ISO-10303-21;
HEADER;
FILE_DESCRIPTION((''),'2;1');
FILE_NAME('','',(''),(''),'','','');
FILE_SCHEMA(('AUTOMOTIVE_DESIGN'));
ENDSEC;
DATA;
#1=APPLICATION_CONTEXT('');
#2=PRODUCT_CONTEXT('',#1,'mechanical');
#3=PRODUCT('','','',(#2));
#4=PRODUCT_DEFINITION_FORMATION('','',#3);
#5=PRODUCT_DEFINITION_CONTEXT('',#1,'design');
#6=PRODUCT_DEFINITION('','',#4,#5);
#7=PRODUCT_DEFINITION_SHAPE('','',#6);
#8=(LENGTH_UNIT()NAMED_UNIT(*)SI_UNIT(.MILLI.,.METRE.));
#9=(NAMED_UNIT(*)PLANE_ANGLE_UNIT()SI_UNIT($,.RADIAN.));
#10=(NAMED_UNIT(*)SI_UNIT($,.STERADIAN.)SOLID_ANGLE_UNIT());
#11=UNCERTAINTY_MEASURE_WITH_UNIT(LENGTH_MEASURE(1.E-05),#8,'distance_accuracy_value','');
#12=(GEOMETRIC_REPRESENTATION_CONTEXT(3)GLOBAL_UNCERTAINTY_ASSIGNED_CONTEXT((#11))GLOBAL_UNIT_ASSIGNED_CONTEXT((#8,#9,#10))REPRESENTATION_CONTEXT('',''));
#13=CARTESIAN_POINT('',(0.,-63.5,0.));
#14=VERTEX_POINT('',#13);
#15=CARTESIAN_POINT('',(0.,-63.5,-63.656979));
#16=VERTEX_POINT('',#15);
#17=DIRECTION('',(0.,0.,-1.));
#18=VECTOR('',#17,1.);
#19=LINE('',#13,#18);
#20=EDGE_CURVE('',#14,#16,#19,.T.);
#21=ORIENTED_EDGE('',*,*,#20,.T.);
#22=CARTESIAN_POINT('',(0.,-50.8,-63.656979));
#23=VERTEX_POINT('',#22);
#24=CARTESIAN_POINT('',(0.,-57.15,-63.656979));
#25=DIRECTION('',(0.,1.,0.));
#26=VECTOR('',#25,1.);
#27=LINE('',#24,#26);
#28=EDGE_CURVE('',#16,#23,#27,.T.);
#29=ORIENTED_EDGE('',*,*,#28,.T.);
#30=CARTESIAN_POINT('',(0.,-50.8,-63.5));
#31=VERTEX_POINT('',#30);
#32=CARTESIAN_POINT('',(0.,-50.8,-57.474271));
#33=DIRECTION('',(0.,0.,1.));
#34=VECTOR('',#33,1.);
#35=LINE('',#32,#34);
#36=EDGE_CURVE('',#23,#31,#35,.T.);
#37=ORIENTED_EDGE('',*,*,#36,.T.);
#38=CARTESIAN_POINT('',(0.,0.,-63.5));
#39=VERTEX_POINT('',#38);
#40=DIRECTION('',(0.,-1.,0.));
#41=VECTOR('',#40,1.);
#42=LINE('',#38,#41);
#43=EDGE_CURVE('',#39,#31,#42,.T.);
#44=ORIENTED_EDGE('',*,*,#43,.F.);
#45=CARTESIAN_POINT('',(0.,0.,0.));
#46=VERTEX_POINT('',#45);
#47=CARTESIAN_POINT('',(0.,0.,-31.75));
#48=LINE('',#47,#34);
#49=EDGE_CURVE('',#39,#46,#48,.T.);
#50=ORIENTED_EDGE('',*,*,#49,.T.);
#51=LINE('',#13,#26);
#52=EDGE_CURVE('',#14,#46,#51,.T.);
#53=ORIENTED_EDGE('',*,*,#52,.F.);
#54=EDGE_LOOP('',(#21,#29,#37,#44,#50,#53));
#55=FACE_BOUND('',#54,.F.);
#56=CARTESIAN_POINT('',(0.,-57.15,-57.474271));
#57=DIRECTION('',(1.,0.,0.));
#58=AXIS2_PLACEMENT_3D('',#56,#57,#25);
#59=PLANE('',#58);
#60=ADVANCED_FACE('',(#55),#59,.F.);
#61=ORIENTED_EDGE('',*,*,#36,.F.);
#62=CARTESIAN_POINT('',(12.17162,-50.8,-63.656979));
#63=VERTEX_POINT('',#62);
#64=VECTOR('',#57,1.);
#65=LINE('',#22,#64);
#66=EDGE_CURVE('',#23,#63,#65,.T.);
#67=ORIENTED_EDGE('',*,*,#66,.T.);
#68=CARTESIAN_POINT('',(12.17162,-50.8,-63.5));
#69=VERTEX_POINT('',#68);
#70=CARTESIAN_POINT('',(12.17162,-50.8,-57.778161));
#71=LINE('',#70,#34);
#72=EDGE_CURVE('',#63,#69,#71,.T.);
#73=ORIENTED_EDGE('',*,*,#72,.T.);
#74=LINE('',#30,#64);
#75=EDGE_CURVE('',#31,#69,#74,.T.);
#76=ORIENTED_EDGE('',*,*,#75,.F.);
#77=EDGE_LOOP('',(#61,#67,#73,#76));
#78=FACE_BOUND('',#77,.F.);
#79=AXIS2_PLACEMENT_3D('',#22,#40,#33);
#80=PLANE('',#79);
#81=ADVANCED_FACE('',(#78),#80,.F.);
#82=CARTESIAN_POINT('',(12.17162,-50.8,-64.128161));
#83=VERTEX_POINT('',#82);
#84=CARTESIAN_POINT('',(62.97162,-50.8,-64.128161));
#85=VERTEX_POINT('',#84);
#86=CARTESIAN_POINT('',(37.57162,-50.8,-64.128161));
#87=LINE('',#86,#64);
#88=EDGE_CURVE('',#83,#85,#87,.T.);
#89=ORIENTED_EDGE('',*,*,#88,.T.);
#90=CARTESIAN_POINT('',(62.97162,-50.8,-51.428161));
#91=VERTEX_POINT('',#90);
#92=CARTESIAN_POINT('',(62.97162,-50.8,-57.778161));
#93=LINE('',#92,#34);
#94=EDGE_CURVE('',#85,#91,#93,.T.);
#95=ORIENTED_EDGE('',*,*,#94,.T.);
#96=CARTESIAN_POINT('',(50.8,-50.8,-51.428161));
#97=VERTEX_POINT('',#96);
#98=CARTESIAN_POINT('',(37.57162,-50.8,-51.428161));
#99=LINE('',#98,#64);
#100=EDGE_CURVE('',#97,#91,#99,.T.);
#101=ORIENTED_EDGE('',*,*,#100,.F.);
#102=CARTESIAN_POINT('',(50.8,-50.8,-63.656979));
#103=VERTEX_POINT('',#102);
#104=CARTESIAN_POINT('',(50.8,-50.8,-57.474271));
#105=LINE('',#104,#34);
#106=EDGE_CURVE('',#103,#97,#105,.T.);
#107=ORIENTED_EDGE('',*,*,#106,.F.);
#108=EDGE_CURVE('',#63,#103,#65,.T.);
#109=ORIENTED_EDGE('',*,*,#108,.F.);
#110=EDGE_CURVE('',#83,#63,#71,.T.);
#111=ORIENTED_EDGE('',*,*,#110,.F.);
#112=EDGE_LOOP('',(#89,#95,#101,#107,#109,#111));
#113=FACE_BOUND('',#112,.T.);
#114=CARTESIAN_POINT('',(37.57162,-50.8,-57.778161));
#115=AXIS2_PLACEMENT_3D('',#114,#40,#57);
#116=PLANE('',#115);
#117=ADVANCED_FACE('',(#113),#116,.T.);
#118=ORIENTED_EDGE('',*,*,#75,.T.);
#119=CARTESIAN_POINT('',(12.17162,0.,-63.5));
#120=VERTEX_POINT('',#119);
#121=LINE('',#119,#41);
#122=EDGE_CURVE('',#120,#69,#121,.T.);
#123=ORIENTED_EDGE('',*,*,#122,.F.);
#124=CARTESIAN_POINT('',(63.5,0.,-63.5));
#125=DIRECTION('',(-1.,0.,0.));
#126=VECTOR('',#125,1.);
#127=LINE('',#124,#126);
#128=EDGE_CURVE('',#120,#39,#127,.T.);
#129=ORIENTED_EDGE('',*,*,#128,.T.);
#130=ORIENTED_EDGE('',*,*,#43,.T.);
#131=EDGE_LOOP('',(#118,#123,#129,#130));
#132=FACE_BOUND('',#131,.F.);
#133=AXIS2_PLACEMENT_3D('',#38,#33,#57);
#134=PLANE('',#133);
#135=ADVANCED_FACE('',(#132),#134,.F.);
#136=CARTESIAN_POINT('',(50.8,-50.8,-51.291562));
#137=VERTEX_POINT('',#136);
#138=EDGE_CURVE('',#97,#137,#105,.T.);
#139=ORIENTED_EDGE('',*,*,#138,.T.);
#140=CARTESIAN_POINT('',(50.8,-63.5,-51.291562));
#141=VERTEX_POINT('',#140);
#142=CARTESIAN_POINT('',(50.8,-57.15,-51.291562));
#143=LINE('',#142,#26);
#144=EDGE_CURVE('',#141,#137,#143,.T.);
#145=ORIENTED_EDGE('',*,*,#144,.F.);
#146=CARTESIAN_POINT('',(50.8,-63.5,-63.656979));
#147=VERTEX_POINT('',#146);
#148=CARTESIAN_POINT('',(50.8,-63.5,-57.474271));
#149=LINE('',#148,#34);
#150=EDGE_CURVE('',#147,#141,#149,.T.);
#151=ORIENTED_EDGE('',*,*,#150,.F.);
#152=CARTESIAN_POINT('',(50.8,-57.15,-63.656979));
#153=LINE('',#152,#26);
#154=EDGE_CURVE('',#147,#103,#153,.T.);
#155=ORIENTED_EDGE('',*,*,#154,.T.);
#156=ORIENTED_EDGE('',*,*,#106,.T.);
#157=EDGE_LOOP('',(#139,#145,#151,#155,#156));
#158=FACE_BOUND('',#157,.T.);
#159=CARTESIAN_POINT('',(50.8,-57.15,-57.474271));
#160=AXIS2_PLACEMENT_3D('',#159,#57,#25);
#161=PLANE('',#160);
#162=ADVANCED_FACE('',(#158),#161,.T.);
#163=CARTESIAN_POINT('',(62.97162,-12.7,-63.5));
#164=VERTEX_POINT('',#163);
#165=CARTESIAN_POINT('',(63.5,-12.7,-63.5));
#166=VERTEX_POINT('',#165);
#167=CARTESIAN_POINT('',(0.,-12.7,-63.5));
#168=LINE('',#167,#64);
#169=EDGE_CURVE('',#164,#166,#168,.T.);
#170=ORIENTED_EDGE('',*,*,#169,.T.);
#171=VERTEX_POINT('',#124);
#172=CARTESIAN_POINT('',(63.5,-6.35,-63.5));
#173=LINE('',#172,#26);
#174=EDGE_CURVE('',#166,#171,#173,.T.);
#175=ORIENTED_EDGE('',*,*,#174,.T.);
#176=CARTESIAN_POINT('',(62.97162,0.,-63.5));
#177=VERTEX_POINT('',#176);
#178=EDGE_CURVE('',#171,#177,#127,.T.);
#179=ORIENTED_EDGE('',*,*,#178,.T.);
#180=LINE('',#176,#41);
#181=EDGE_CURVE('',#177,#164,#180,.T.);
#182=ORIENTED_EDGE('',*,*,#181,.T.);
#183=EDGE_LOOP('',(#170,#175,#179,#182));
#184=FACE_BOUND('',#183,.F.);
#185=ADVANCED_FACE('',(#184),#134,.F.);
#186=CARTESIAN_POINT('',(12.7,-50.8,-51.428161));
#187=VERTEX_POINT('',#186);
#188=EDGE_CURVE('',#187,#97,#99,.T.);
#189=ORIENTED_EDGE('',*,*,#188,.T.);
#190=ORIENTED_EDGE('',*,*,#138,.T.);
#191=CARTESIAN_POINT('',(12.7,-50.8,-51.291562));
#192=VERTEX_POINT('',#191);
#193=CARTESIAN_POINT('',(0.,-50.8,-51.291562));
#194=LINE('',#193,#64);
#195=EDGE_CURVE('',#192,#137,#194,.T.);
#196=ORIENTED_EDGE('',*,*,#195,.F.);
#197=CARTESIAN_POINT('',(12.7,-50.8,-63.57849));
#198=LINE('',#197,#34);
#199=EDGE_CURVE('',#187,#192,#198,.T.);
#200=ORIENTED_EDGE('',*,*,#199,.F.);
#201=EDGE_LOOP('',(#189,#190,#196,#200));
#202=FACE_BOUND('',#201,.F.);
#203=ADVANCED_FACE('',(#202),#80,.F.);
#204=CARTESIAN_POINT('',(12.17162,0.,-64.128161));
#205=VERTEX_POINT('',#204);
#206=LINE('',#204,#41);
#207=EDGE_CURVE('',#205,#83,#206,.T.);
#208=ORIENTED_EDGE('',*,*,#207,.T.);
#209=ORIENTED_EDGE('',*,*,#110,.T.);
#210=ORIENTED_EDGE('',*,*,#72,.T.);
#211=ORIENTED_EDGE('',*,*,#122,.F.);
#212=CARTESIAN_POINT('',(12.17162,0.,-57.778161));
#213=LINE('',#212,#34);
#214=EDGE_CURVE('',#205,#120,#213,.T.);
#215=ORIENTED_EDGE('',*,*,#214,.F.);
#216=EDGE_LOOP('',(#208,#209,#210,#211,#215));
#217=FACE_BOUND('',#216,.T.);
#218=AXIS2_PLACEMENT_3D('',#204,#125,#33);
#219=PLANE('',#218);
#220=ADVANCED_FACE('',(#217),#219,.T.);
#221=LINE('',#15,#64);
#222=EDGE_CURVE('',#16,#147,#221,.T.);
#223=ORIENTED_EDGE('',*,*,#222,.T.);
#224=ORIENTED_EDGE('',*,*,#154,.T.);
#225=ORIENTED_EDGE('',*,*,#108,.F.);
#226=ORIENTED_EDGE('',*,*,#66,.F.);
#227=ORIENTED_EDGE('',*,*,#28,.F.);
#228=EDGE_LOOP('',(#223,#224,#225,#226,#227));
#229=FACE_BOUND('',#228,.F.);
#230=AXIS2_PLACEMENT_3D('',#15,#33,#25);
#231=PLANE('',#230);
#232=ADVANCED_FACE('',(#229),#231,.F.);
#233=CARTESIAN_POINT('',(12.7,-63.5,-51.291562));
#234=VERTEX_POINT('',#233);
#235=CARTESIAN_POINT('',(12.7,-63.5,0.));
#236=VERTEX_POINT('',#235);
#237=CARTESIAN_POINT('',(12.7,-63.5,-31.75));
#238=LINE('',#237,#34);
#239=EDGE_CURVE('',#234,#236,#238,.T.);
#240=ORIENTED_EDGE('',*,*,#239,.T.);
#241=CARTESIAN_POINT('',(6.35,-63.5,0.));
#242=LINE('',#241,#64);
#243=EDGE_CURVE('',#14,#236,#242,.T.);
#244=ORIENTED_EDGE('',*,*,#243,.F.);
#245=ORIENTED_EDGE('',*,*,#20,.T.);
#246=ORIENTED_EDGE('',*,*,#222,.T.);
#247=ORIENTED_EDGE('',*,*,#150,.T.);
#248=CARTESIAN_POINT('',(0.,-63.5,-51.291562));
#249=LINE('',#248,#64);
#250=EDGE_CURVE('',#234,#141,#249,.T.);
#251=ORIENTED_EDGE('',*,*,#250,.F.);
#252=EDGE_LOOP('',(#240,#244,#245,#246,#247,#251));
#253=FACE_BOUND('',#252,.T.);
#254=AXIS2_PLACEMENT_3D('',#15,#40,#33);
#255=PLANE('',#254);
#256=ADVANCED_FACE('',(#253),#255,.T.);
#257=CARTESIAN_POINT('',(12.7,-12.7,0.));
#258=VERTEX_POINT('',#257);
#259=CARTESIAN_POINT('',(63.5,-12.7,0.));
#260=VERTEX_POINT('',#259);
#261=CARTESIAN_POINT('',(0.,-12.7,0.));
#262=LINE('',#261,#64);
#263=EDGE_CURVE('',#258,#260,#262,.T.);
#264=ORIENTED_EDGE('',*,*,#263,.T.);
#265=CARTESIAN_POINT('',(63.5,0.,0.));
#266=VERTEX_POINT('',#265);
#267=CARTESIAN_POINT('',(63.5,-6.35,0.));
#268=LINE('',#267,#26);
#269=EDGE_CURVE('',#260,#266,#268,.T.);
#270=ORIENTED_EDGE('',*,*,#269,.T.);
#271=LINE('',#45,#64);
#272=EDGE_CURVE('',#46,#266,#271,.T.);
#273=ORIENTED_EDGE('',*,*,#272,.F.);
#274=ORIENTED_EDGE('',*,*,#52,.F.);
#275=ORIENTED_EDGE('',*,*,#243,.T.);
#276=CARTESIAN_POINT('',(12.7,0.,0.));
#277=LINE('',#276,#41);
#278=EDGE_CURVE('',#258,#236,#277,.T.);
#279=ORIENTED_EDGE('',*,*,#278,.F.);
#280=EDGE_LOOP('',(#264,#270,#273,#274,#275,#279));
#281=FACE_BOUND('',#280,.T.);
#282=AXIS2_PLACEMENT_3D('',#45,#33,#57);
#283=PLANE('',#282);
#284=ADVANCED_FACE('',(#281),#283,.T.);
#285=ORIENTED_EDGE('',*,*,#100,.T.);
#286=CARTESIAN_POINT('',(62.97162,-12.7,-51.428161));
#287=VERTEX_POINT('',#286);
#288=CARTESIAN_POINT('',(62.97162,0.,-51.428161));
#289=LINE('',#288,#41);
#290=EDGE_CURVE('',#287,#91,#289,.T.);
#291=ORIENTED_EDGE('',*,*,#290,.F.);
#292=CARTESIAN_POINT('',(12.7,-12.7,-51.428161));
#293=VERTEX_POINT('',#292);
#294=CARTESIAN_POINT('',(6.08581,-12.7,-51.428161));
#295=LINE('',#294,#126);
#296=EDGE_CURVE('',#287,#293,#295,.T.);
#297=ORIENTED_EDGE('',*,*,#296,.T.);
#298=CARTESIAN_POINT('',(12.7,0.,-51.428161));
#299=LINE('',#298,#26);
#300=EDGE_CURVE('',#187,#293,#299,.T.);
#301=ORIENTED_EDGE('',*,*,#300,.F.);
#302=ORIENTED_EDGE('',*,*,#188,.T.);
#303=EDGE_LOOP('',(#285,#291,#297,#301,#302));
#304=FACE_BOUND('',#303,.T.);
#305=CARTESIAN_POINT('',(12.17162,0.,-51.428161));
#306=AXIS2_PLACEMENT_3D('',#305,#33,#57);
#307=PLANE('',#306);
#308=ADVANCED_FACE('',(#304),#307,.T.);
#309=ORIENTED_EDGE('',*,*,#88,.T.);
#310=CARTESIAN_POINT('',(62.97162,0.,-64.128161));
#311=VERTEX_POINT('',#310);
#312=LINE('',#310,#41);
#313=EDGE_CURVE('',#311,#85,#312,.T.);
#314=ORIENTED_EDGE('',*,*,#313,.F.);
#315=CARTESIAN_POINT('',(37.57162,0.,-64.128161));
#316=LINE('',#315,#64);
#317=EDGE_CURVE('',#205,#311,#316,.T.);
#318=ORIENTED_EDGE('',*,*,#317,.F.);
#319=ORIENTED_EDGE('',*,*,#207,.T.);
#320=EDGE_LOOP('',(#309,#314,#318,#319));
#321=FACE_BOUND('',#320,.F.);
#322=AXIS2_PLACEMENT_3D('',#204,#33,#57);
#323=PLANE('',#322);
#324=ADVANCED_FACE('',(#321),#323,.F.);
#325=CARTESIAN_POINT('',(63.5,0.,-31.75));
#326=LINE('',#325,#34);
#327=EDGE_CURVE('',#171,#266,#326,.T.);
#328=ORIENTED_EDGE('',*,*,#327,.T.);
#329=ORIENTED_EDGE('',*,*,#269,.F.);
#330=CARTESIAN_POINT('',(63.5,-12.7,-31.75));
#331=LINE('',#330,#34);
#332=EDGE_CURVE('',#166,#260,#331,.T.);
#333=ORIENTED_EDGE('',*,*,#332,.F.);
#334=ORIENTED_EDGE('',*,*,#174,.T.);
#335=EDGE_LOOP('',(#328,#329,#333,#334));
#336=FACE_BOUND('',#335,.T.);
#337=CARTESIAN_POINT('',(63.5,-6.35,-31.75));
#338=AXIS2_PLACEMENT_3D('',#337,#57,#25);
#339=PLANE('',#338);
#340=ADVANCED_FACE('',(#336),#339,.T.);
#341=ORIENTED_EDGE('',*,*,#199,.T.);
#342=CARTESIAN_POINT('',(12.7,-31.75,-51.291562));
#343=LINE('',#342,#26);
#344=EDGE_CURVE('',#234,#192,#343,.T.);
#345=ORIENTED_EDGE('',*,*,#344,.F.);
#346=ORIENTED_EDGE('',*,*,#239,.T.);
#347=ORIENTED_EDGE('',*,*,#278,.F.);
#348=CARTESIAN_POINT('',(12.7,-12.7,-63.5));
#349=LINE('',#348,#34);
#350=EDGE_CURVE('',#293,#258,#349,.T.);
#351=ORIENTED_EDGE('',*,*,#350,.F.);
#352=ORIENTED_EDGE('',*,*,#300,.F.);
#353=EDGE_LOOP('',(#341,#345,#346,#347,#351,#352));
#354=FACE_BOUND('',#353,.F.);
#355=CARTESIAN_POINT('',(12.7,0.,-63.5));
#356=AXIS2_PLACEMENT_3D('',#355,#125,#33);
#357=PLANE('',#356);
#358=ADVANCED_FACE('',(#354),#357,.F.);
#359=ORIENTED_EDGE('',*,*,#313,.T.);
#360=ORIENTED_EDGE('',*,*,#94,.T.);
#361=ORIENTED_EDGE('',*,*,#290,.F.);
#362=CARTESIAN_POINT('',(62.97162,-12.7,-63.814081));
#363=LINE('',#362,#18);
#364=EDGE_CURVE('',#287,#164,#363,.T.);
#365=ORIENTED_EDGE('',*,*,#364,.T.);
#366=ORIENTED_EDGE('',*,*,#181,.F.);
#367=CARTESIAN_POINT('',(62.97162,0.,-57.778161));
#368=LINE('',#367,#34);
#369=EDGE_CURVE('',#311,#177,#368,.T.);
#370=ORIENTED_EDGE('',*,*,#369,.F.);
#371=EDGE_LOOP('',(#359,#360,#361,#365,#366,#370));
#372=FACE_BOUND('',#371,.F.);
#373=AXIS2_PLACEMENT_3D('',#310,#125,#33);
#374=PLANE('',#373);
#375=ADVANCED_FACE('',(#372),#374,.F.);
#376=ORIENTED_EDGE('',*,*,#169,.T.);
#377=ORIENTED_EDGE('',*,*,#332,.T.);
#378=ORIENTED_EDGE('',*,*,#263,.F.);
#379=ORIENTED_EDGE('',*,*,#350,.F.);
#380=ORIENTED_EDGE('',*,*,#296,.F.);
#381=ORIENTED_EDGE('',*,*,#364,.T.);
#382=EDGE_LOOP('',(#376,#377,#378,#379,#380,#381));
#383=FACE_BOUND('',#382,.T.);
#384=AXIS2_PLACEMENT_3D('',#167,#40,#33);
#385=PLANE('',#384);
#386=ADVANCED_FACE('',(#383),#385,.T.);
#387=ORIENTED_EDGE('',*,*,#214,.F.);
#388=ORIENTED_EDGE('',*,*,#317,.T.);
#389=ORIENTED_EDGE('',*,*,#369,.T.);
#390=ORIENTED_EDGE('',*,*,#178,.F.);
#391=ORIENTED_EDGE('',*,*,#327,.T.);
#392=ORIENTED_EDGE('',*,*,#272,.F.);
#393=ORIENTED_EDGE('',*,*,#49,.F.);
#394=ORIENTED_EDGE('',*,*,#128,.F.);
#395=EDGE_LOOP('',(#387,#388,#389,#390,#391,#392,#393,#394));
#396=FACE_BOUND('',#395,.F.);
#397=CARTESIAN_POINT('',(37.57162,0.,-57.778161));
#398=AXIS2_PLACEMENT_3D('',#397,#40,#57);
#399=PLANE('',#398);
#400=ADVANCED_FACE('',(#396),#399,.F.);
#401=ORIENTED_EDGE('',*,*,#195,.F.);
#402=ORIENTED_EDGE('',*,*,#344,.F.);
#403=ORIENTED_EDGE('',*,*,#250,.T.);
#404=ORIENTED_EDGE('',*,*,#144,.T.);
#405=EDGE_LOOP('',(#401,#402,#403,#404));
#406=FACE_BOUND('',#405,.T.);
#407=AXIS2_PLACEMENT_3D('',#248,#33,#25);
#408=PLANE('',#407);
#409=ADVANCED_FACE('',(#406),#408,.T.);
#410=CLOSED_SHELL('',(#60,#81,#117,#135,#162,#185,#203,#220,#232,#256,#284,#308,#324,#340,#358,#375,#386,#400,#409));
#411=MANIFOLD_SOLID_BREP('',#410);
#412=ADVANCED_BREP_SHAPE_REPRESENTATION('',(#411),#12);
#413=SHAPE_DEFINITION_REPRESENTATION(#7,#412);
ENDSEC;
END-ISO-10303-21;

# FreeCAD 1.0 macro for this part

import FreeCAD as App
import Part
import Sketcher
Q = App.Units.Quantity

doc = App.newDocument("Part")
params = doc.addObject("Spreadsheet::Sheet", "Params")
for row, (alias, value) in enumerate([
    ("sketch1_width", "0.5 in"),
    ("sketch1_height", "2.5 in"),
    ("pad1_length", "2.5 in"),
    ("sketch2_width", "0.5 in"),
    ("sketch2_height", "2.5 in"),
    ("pad2_length", "2.5 in"),
    ("sketch3_width", "2 in"),
    ("sketch3_height", "0.5 in"),
    ("pad3_length", "2 in"),
    ("sketch4_width", "0.5 in"),
    ("pad4_length", "2 in"),
], start=1):
    params.set(f"A{row}", alias)
    params.set(f"B{row}", "=" + value)
    params.setAlias(f"B{row}", alias)

body = doc.addObject("PartDesign::Body", "Body")

sketch1 = body.newObject("Sketcher::SketchObject", "Sketch")
sketch1.AttachmentSupport = (doc.getObject("XZ_Plane"), [""])
sketch1.MapMode = "FlatFace"
sketch1.addGeometry([
    Part.LineSegment(App.Vector(0, 0, 0), App.Vector(0, -63.5, 0)),
    Part.LineSegment(App.Vector(0, -63.5, 0), App.Vector(12.7, -63.5, 0)),
    Part.LineSegment(App.Vector(12.7, -63.5, 0), App.Vector(12.7, 0, 0)),
    Part.LineSegment(App.Vector(12.7, 0, 0), App.Vector(0, 0, 0)),
], False)
sketch1.addConstraint([
    Sketcher.Constraint("Coincident", 0, 2, 1, 1),
    Sketcher.Constraint("Coincident", 1, 2, 2, 1),
    Sketcher.Constraint("Coincident", 2, 2, 3, 1),
    Sketcher.Constraint("Coincident", 3, 2, 0, 1),
    Sketcher.Constraint("Vertical", 0),
    Sketcher.Constraint("Horizontal", 1),
    Sketcher.Constraint("Vertical", 2),
    Sketcher.Constraint("Horizontal", 3),
    Sketcher.Constraint("Coincident", 3, 2, -1, 1),
    Sketcher.Constraint("DistanceX", 1, 1, 1, 2, Q("0.5 in")),
    Sketcher.Constraint("DistanceY", 0, 2, 0, 1, Q("2.5 in")),
])
sketch1.setExpression("Constraints[9]", "Params.sketch1_width")
sketch1.setExpression("Constraints[10]", "Params.sketch1_height")
pad1 = body.newObject("PartDesign::Pad", "Pad")
pad1.Profile = sketch1
pad1.setExpression("Length", "Params.pad1_length")

sketch2 = body.newObject("Sketcher::SketchObject", "Sketch001")
sketch2.AttachmentSupport = (doc.getObject("YZ_Plane"), [""])
sketch2.MapMode = "FlatFace"
sketch2.addGeometry([
    Part.LineSegment(App.Vector(-12.7, 0, 0), App.Vector(-12.7, -63.5, 0)),
    Part.LineSegment(App.Vector(-12.7, -63.5, 0), App.Vector(0, -63.5, 0)),
    Part.LineSegment(App.Vector(0, -63.5, 0), App.Vector(0, 0, 0)),
    Part.LineSegment(App.Vector(0, 0, 0), App.Vector(-12.7, 0, 0)),
], False)
sketch2.addConstraint([
    Sketcher.Constraint("Coincident", 0, 2, 1, 1),
    Sketcher.Constraint("Coincident", 1, 2, 2, 1),
    Sketcher.Constraint("Coincident", 2, 2, 3, 1),
    Sketcher.Constraint("Coincident", 3, 2, 0, 1),
    Sketcher.Constraint("Vertical", 0),
    Sketcher.Constraint("Horizontal", 1),
    Sketcher.Constraint("Vertical", 2),
    Sketcher.Constraint("Horizontal", 3),
    Sketcher.Constraint("Coincident", 2, 2, -1, 1),
    Sketcher.Constraint("DistanceX", 1, 1, 1, 2, Q("0.5 in")),
    Sketcher.Constraint("DistanceY", 0, 2, 0, 1, Q("2.5 in")),
])
sketch2.setExpression("Constraints[9]", "Params.sketch2_width")
sketch2.setExpression("Constraints[10]", "Params.sketch2_height")
pad2 = body.newObject("PartDesign::Pad", "Pad001")
pad2.Profile = sketch2
pad2.setExpression("Length", "Params.pad2_length")

sketch3 = body.newObject("Sketcher::SketchObject", "Sketch002")
sketch3.AttachmentSupport = (doc.getObject("XZ_Plane"), [""])
sketch3.MapMode = "FlatFace"
sketch3.addGeometry([
    Part.LineSegment(App.Vector(12.17162, -51.428161, 0), App.Vector(12.17162, -64.128161, 0)),
    Part.LineSegment(App.Vector(12.17162, -64.128161, 0), App.Vector(62.97162, -64.128161, 0)),
    Part.LineSegment(App.Vector(62.97162, -64.128161, 0), App.Vector(62.97162, -51.428161, 0)),
    Part.LineSegment(App.Vector(62.97162, -51.428161, 0), App.Vector(12.17162, -51.428161, 0)),
], False)
sketch3.addConstraint([
    Sketcher.Constraint("Coincident", 0, 2, 1, 1),
    Sketcher.Constraint("Coincident", 1, 2, 2, 1),
    Sketcher.Constraint("Coincident", 2, 2, 3, 1),
    Sketcher.Constraint("Coincident", 3, 2, 0, 1),
    Sketcher.Constraint("Vertical", 0),
    Sketcher.Constraint("Horizontal", 1),
    Sketcher.Constraint("Vertical", 2),
    Sketcher.Constraint("Horizontal", 3),
    Sketcher.Constraint("DistanceX", 1, 1, 1, 2, Q("2 in")),
    Sketcher.Constraint("DistanceY", 0, 2, 0, 1, Q("0.5 in")),
    Sketcher.Constraint("DistanceX", -1, 1, 0, 2, 12.17162),
    Sketcher.Constraint("DistanceY", 0, 2, -1, 1, 64.128161),
])
sketch3.setExpression("Constraints[8]", "Params.sketch3_width")
sketch3.setExpression("Constraints[9]", "Params.sketch3_height")
pad3 = body.newObject("PartDesign::Pad", "Pad002")
pad3.Profile = sketch3
pad3.setExpression("Length", "Params.pad3_length")

sketch4 = body.newObject("Sketcher::SketchObject", "Sketch003")
sketch4.AttachmentSupport = (doc.getObject("YZ_Plane"), [""])
sketch4.MapMode = "FlatFace"
sketch4.addGeometry([
    Part.LineSegment(App.Vector(-63.5, -51.291562, 0), App.Vector(-63.5, -63.656979, 0)),
    Part.LineSegment(App.Vector(-63.5, -63.656979, 0), App.Vector(-50.8, -63.656979, 0)),
    Part.LineSegment(App.Vector(-50.8, -63.656979, 0), App.Vector(-50.8, -51.291562, 0)),
    Part.LineSegment(App.Vector(-50.8, -51.291562, 0), App.Vector(-63.5, -51.291562, 0)),
], False)
sketch4.addConstraint([
    Sketcher.Constraint("Coincident", 0, 2, 1, 1),
    Sketcher.Constraint("Coincident", 1, 2, 2, 1),
    Sketcher.Constraint("Coincident", 2, 2, 3, 1),
    Sketcher.Constraint("Coincident", 3, 2, 0, 1),
    Sketcher.Constraint("Vertical", 0),
    Sketcher.Constraint("Horizontal", 1),
    Sketcher.Constraint("Vertical", 2),
    Sketcher.Constraint("Horizontal", 3),
    Sketcher.Constraint("DistanceX", 1, 1, 1, 2, Q("0.5 in")),
    Sketcher.Constraint("DistanceX", 1, 2, -1, 1, Q("2 in")),
    Sketcher.Constraint("DistanceY", 0, 2, 0, 1, 12.365417),
    Sketcher.Constraint("DistanceY", 0, 2, -1, 1, 63.656979),
])
sketch4.setExpression("Constraints[8]", "Params.sketch4_width")
pad4 = body.newObject("PartDesign::Pad", "Pad003")
pad4.Profile = sketch4
pad4.setExpression("Length", "Params.pad4_length")

doc.recompute()
